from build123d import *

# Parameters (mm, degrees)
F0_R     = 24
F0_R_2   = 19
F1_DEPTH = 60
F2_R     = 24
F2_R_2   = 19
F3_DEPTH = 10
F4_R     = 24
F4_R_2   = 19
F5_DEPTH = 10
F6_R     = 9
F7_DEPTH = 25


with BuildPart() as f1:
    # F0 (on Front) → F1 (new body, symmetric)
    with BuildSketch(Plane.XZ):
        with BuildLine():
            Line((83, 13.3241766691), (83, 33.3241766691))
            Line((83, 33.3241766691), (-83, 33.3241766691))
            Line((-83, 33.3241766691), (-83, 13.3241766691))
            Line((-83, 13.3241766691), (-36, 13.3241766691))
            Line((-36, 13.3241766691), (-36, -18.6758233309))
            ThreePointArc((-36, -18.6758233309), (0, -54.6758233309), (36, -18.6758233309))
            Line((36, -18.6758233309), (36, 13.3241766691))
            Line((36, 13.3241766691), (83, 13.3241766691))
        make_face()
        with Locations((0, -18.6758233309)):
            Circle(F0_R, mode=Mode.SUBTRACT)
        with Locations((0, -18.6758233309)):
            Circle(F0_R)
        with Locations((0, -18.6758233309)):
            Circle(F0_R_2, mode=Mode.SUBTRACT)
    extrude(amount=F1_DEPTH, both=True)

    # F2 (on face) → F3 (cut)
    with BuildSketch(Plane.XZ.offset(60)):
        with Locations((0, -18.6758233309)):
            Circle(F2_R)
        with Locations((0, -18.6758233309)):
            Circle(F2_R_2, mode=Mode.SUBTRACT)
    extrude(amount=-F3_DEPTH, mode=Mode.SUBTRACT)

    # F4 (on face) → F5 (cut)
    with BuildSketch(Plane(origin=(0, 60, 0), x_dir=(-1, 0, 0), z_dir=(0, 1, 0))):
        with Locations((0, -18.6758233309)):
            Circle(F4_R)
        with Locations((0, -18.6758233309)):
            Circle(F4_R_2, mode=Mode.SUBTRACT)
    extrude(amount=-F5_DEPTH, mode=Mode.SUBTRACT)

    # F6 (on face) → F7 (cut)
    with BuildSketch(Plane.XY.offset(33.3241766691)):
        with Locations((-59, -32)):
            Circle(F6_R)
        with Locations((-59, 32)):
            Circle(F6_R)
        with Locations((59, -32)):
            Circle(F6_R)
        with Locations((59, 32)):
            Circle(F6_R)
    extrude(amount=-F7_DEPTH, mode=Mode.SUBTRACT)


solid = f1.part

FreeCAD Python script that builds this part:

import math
import FreeCAD as App
import Part
import Sketcher

V = App.Vector
Q = App.Units.Quantity

doc = App.newDocument("Part")
body = doc.addObject("PartDesign::Body", "Body")

# Sketch on XZ plane
sketch1 = body.newObject("Sketcher::SketchObject", "Sketch")
sketch1.AttachmentSupport = (doc.getObject("XZ_Plane"), [""])
sketch1.MapMode = "FlatFace"
sketch1.addGeometry([
    Part.LineSegment(V(83, 13, 0), V(83, 33, 0)),  # 0
    Part.LineSegment(V(83, 33, 0), V(-83, 33, 0)),  # 1
    Part.LineSegment(V(-83, 33, 0), V(-83, 13, 0)),  # 2
    Part.LineSegment(V(-83, 13, 0), V(-36, 13, 0)),  # 3
    Part.LineSegment(V(-36, 13, 0), V(-36, -19, 0)),  # 4
    Part.ArcOfCircle(Part.Circle(V(0, -19, 0), V(0, 0, 1), 36), math.radians(180), math.radians(360)),  # 5
    Part.LineSegment(V(36, -19, 0), V(36, 13, 0)),  # 6
    Part.LineSegment(V(36, 13, 0), V(83, 13, 0)),  # 7
    Part.Circle(V(0, -19, 0), V(0, 0, 1), 19),  # 8
], False)
sketch1.addConstraint([
    Sketcher.Constraint("Coincident", 0, 2, 1, 1),
    Sketcher.Constraint("Coincident", 1, 2, 2, 1),
    Sketcher.Constraint("Coincident", 2, 2, 3, 1),
    Sketcher.Constraint("Coincident", 3, 2, 4, 1),
    Sketcher.Constraint("Tangent", 4, 2, 5, 1),
    Sketcher.Constraint("Tangent", 5, 2, 6, 1),
    Sketcher.Constraint("Coincident", 6, 2, 7, 1),
    Sketcher.Constraint("Coincident", 7, 2, 0, 1),
    Sketcher.Constraint("Vertical", 0),
    Sketcher.Constraint("Horizontal", 1),
    Sketcher.Constraint("Vertical", 2),
    Sketcher.Constraint("Horizontal", 3),
    Sketcher.Constraint("Vertical", 4),
    Sketcher.Constraint("Vertical", 6),
    Sketcher.Constraint("Horizontal", 7),
    Sketcher.Constraint("Coincident", 8, 3, 5, 3),
    Sketcher.Constraint("Symmetric", 3, 2, 6, 2, -2),
    Sketcher.Constraint("Equal", 3, 7),
    Sketcher.Constraint("Diameter", 8, Q("38 mm")),
    Sketcher.Constraint("Radius", 5, Q("36 mm")),
    Sketcher.Constraint("DistanceX", 1, 2, 1, 1, Q("166 mm")),
    Sketcher.Constraint("DistanceY", 0, 1, 0, 2, Q("20 mm")),
    Sketcher.Constraint("DistanceY", 4, 2, 4, 1, Q("32 mm")),
    Sketcher.Constraint("DistanceY", 5, 3, -1, 1, Q("18.675823 mm")),
])
pad1 = body.newObject("PartDesign::Pad", "Pad")
pad1.Profile = sketch1
pad1.Length = 120
pad1.Midplane = True

# Sketch on XZ plane
sketch2 = body.newObject("Sketcher::SketchObject", "Sketch001")
sketch2.AttachmentSupport = (doc.getObject("XZ_Plane"), [""])
sketch2.MapMode = "FlatFace"
sketch2.AttachmentOffset = App.Placement(V(0, 0, 60), App.Rotation())
sketch2.addGeometry([
    Part.Circle(V(0, -19, 0), V(0, 0, 1), 24),
    Part.Circle(V(0, -19, 0), V(0, 0, 1), 19),
], False)
sketch2.addConstraint([
    Sketcher.Constraint("Coincident", 1, 3, 0, 3),
    Sketcher.Constraint("PointOnObject", 0, 3, -2),
    Sketcher.Constraint("Diameter", 0, Q("48 mm")),
    Sketcher.Constraint("Diameter", 1, Q("38 mm")),
    Sketcher.Constraint("DistanceY", 0, 3, -1, 1, Q("18.675823 mm")),
])
pocket1 = body.newObject("PartDesign::Pocket", "Pocket")
pocket1.Profile = sketch2
pocket1.Length = 10

# Sketch on XZ plane
sketch3 = body.newObject("Sketcher::SketchObject", "Sketch002")
sketch3.AttachmentSupport = (doc.getObject("XZ_Plane"), [""])
sketch3.MapMode = "FlatFace"
sketch3.AttachmentOffset = App.Placement(V(0, 0, -60), App.Rotation())
sketch3.addGeometry([
    Part.Circle(V(0, -19, 0), V(0, 0, 1), 24),
    Part.Circle(V(0, -19, 0), V(0, 0, 1), 19),
], False)
sketch3.addConstraint([
    Sketcher.Constraint("Coincident", 1, 3, 0, 3),
    Sketcher.Constraint("PointOnObject", 0, 3, -2),
    Sketcher.Constraint("Diameter", 0, Q("48 mm")),
    Sketcher.Constraint("Diameter", 1, Q("38 mm")),
    Sketcher.Constraint("DistanceY", 0, 3, -1, 1, Q("18.675823 mm")),
])
pocket2 = body.newObject("PartDesign::Pocket", "Pocket001")
pocket2.Profile = sketch3
pocket2.Length = 10
pocket2.Reversed = True

# Sketch on XY plane
sketch4 = body.newObject("Sketcher::SketchObject", "Sketch003")
sketch4.AttachmentSupport = (doc.getObject("XY_Plane"), [""])
sketch4.MapMode = "FlatFace"
sketch4.AttachmentOffset = App.Placement(V(0, 0, 33.324177), App.Rotation())
sketch4.addGeometry([
    Part.Circle(V(-59, -32, 0), V(0, 0, 1), 9),
    Part.Circle(V(-59, 32, 0), V(0, 0, 1), 9),
    Part.Circle(V(59, -32, 0), V(0, 0, 1), 9),
    Part.Circle(V(59, 32, 0), V(0, 0, 1), 9),
], False)
sketch4.addConstraint([
    Sketcher.Constraint("Equal", 0, 1),
    Sketcher.Constraint("Equal", 1, 2),
    Sketcher.Constraint("Equal", 2, 3),
    Sketcher.Constraint("Symmetric", 1, 3, 2, 3, -1, 1),
    Sketcher.Constraint("Symmetric", 0, 3, 3, 3, -1, 1),
    Sketcher.Constraint("Symmetric", 0, 3, 2, 3, -2),
    Sketcher.Constraint("Diameter", 0, Q("18 mm")),
    Sketcher.Constraint("DistanceX", 0, 3, -1, 1, Q("59 mm")),
    Sketcher.Constraint("DistanceY", 0, 3, -1, 1, Q("32 mm")),
])
pocket3 = body.newObject("PartDesign::Pocket", "Pocket002")
pocket3.Profile = sketch4
pocket3.Length = 25

doc.recompute()
